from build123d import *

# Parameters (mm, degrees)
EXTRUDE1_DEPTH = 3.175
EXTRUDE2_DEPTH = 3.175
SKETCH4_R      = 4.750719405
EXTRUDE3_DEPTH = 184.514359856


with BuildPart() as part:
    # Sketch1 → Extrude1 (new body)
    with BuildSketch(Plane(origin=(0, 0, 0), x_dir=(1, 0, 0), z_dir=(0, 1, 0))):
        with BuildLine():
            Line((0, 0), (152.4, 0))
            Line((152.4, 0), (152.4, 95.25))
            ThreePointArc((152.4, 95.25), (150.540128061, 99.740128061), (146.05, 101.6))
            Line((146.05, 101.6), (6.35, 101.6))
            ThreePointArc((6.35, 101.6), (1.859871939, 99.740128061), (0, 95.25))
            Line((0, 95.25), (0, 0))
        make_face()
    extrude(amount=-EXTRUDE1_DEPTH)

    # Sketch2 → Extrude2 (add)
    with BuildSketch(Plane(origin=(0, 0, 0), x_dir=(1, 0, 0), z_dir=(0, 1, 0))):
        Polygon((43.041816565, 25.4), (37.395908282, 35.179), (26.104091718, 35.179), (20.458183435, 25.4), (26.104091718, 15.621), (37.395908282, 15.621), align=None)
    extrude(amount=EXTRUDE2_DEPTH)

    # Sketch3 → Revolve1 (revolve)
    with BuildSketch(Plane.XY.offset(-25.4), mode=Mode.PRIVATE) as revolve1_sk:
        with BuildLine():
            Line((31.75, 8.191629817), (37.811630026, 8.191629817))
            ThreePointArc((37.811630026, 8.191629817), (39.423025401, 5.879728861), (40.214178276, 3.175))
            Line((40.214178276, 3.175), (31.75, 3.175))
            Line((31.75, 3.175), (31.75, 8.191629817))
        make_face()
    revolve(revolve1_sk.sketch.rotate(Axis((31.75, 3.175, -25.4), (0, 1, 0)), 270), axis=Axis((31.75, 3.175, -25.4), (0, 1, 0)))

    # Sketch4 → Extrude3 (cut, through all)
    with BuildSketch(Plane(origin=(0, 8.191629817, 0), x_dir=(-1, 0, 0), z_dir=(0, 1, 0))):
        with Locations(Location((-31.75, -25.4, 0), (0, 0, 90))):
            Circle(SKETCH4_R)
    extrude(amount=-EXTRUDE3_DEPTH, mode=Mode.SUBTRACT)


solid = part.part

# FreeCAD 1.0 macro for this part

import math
import FreeCAD as App
import Part
import Sketcher

V = App.Vector
Q = App.Units.Quantity


def add_polygon(sketch, points):
    """Adds a closed chain of lines whose ends are joined by coincident constraints."""
    first, n = sketch.GeometryCount, len(points)
    for a, b in zip(points, points[1:] + points[:1]):
        sketch.addGeometry(Part.LineSegment(App.Vector(*a, 0), App.Vector(*b, 0)), False)
    for i in range(n):
        sketch.addConstraint(Sketcher.Constraint("Coincident", first + i, 2, first + (i + 1) % n, 1))

doc = App.newDocument("Part")
body = doc.addObject("PartDesign::Body", "Body")

# Sketch on XZ plane
sketch1 = body.newObject("Sketcher::SketchObject", "Sketch")
sketch1.AttachmentSupport = (doc.getObject("XZ_Plane"), [""])
sketch1.MapMode = "FlatFace"
sketch1.addGeometry([
    Part.LineSegment(V(0, 0, 0), V(152.4, 0, 0)),  # 0
    Part.LineSegment(V(152.4, 0, 0), V(152.4, -95.25, 0)),  # 1
    Part.ArcOfCircle(Part.Circle(V(146.05, -95.25, 0), V(0, 0, 1), 6.35), math.radians(-90), math.radians(0)),  # 2
    Part.LineSegment(V(146.05, -101.6, 0), V(6.35, -101.6, 0)),  # 3
    Part.ArcOfCircle(Part.Circle(V(6.35, -95.25, 0), V(0, 0, 1), 6.35), math.radians(180), math.radians(270)),  # 4
    Part.LineSegment(V(0, -95.25, 0), V(0, 0, 0)),  # 5
], False)
sketch1.addConstraint([
    Sketcher.Constraint("Coincident", 0, 2, 1, 1),
    Sketcher.Constraint("Tangent", 1, 2, 2, 2),
    Sketcher.Constraint("Tangent", 2, 1, 3, 1),
    Sketcher.Constraint("Tangent", 3, 2, 4, 2),
    Sketcher.Constraint("Tangent", 4, 1, 5, 1),
    Sketcher.Constraint("Coincident", 5, 2, 0, 1),
    Sketcher.Constraint("Horizontal", 0),
    Sketcher.Constraint("Vertical", 1),
    Sketcher.Constraint("Horizontal", 3),
    Sketcher.Constraint("Vertical", 5),
    Sketcher.Constraint("Coincident", 5, 2, -1, 1),
    Sketcher.Constraint("Equal", 2, 4),
    Sketcher.Constraint("DistanceX", 0, 1, 0, 2, Q("6 in")),
    Sketcher.Constraint("Radius", 2, Q("0.25 in")),
    Sketcher.Constraint("DistanceY", 2, 1, -1, 1, Q("4 in")),
])
pad1 = body.newObject("PartDesign::Pad", "Pad")
pad1.Profile = sketch1
pad1.Length = Q("0.125 in")

# Sketch on XZ plane
sketch2 = body.newObject("Sketcher::SketchObject", "Sketch001")
sketch2.AttachmentSupport = (doc.getObject("XZ_Plane"), [""])
sketch2.MapMode = "FlatFace"
add_polygon(sketch2, [(43.041817, -25.4), (37.395908, -35.179), (26.104092, -35.179), (20.458183, -25.4), (26.104092, -15.621), (37.395908, -15.621)])  # lines 0-5
sketch2.addConstraint([
    Sketcher.Constraint("Horizontal", 1),
    Sketcher.Constraint("Horizontal", 4),
    Sketcher.Constraint("Parallel", 0, 3),
    Sketcher.Constraint("Parallel", 2, 5),
    Sketcher.Constraint("Horizontal", 2, 2, 5, 2),
    Sketcher.Constraint("Vertical", 1, 2, 3, 2),
    Sketcher.Constraint("Vertical", 0, 2, 4, 2),
    Sketcher.Constraint("DistanceY", 2, 2, -1, 1, Q("1 in")),
    Sketcher.Constraint("Angle", 0, Q("-120 deg")),
    Sketcher.Constraint("DistanceY", 1, 2, 3, 2, Q("0.77 in")),
    Sketcher.Constraint("DistanceX", 1, 2, 1, 1, 11.291817),
    Sketcher.Constraint("DistanceX", -1, 1, 0, 2, 37.395908),
])
pad2 = body.newObject("PartDesign::Pad", "Pad001")
pad2.Profile = sketch2
pad2.Length = Q("0.125 in")
pad2.Reversed = True

# Sketch on XY plane
sketch3 = body.newObject("Sketcher::SketchObject", "Sketch002")
sketch3.AttachmentSupport = (doc.getObject("XY_Plane"), [""])
sketch3.MapMode = "FlatFace"
sketch3.AttachmentOffset = App.Placement(V(0, 0, -1 * 25.4), App.Rotation())
sketch3.addGeometry([
    Part.LineSegment(V(37.81163, 8.19163, 0), V(31.75, 8.19163, 0)),
    Part.LineSegment(V(31.75, 8.19163, 0), V(31.75, 3.175, 0)),
    Part.LineSegment(V(31.75, 3.175, 0), V(40.214178, 3.175, 0)),
    Part.ArcOfCircle(Part.Circle(V(31.547497, 2.108006, 0), V(0, 0, 1), 8.732115), math.radians(7.018621), math.radians(44.162465)),
], False)
sketch3.addGeometry(Part.LineSegment(V(31.75, 2.108006, 0), V(31.75, 8.19163, 0)), True)  # axis
sketch3.addConstraint([
    Sketcher.Constraint("Coincident", 0, 2, 1, 1),
    Sketcher.Constraint("Coincident", 1, 2, 2, 1),
    Sketcher.Constraint("Coincident", 2, 2, 3, 1),
    Sketcher.Constraint("Coincident", 3, 2, 0, 1),
    Sketcher.Constraint("Horizontal", 0),
    Sketcher.Constraint("Vertical", 1),
    Sketcher.Constraint("Horizontal", 2),
    Sketcher.Constraint("Vertical", 4),
    Sketcher.Constraint("Coincident", 4, 2, 0, 2),
    Sketcher.Constraint("Horizontal", 3, 3, 4, 1),
    Sketcher.Constraint("DistanceX", -1, 1, 0, 2, Q("1.25 in")),
    Sketcher.Constraint("DistanceY", -1, 1, 1, 2, Q("0.125 in")),
    Sketcher.Constraint("Radius", 3, 8.732115),
    Sketcher.Constraint("DistanceX", 0, 2, 0, 1, 6.06163),
    Sketcher.Constraint("DistanceX", 2, 1, 2, 2, 8.464178),
    Sketcher.Constraint("DistanceY", 1, 2, 1, 1, 5.01663),
])
revolution = body.newObject("PartDesign::Revolution", "Revolution")
revolution.Profile = sketch3
revolution.ReferenceAxis = (sketch3, ["Axis0"])
revolution.Angle = 360

# Sketch on XZ plane
sketch4 = body.newObject("Sketcher::SketchObject", "Sketch003")
sketch4.AttachmentSupport = (doc.getObject("XZ_Plane"), [""])
sketch4.MapMode = "FlatFace"
sketch4.AttachmentOffset = App.Placement(V(0, 0, -8.19163), App.Rotation())
sketch4.addGeometry(Part.Circle(V(31.75, -25.4, 0), V(0, 0, 1), 4.750719), False)
sketch4.addConstraint([
    Sketcher.Constraint("DistanceY", 0, 3, -1, 1, Q("1 in")),
    Sketcher.Constraint("DistanceX", -1, 1, 0, 3, Q("1.25 in")),
    Sketcher.Constraint("Diameter", 0, 9.501439),
])
pocket1 = body.newObject("PartDesign::Pocket", "Pocket")
pocket1.Profile = sketch4
pocket1.Type = "ThroughAll"
pocket1.Reversed = True

doc.recompute()
